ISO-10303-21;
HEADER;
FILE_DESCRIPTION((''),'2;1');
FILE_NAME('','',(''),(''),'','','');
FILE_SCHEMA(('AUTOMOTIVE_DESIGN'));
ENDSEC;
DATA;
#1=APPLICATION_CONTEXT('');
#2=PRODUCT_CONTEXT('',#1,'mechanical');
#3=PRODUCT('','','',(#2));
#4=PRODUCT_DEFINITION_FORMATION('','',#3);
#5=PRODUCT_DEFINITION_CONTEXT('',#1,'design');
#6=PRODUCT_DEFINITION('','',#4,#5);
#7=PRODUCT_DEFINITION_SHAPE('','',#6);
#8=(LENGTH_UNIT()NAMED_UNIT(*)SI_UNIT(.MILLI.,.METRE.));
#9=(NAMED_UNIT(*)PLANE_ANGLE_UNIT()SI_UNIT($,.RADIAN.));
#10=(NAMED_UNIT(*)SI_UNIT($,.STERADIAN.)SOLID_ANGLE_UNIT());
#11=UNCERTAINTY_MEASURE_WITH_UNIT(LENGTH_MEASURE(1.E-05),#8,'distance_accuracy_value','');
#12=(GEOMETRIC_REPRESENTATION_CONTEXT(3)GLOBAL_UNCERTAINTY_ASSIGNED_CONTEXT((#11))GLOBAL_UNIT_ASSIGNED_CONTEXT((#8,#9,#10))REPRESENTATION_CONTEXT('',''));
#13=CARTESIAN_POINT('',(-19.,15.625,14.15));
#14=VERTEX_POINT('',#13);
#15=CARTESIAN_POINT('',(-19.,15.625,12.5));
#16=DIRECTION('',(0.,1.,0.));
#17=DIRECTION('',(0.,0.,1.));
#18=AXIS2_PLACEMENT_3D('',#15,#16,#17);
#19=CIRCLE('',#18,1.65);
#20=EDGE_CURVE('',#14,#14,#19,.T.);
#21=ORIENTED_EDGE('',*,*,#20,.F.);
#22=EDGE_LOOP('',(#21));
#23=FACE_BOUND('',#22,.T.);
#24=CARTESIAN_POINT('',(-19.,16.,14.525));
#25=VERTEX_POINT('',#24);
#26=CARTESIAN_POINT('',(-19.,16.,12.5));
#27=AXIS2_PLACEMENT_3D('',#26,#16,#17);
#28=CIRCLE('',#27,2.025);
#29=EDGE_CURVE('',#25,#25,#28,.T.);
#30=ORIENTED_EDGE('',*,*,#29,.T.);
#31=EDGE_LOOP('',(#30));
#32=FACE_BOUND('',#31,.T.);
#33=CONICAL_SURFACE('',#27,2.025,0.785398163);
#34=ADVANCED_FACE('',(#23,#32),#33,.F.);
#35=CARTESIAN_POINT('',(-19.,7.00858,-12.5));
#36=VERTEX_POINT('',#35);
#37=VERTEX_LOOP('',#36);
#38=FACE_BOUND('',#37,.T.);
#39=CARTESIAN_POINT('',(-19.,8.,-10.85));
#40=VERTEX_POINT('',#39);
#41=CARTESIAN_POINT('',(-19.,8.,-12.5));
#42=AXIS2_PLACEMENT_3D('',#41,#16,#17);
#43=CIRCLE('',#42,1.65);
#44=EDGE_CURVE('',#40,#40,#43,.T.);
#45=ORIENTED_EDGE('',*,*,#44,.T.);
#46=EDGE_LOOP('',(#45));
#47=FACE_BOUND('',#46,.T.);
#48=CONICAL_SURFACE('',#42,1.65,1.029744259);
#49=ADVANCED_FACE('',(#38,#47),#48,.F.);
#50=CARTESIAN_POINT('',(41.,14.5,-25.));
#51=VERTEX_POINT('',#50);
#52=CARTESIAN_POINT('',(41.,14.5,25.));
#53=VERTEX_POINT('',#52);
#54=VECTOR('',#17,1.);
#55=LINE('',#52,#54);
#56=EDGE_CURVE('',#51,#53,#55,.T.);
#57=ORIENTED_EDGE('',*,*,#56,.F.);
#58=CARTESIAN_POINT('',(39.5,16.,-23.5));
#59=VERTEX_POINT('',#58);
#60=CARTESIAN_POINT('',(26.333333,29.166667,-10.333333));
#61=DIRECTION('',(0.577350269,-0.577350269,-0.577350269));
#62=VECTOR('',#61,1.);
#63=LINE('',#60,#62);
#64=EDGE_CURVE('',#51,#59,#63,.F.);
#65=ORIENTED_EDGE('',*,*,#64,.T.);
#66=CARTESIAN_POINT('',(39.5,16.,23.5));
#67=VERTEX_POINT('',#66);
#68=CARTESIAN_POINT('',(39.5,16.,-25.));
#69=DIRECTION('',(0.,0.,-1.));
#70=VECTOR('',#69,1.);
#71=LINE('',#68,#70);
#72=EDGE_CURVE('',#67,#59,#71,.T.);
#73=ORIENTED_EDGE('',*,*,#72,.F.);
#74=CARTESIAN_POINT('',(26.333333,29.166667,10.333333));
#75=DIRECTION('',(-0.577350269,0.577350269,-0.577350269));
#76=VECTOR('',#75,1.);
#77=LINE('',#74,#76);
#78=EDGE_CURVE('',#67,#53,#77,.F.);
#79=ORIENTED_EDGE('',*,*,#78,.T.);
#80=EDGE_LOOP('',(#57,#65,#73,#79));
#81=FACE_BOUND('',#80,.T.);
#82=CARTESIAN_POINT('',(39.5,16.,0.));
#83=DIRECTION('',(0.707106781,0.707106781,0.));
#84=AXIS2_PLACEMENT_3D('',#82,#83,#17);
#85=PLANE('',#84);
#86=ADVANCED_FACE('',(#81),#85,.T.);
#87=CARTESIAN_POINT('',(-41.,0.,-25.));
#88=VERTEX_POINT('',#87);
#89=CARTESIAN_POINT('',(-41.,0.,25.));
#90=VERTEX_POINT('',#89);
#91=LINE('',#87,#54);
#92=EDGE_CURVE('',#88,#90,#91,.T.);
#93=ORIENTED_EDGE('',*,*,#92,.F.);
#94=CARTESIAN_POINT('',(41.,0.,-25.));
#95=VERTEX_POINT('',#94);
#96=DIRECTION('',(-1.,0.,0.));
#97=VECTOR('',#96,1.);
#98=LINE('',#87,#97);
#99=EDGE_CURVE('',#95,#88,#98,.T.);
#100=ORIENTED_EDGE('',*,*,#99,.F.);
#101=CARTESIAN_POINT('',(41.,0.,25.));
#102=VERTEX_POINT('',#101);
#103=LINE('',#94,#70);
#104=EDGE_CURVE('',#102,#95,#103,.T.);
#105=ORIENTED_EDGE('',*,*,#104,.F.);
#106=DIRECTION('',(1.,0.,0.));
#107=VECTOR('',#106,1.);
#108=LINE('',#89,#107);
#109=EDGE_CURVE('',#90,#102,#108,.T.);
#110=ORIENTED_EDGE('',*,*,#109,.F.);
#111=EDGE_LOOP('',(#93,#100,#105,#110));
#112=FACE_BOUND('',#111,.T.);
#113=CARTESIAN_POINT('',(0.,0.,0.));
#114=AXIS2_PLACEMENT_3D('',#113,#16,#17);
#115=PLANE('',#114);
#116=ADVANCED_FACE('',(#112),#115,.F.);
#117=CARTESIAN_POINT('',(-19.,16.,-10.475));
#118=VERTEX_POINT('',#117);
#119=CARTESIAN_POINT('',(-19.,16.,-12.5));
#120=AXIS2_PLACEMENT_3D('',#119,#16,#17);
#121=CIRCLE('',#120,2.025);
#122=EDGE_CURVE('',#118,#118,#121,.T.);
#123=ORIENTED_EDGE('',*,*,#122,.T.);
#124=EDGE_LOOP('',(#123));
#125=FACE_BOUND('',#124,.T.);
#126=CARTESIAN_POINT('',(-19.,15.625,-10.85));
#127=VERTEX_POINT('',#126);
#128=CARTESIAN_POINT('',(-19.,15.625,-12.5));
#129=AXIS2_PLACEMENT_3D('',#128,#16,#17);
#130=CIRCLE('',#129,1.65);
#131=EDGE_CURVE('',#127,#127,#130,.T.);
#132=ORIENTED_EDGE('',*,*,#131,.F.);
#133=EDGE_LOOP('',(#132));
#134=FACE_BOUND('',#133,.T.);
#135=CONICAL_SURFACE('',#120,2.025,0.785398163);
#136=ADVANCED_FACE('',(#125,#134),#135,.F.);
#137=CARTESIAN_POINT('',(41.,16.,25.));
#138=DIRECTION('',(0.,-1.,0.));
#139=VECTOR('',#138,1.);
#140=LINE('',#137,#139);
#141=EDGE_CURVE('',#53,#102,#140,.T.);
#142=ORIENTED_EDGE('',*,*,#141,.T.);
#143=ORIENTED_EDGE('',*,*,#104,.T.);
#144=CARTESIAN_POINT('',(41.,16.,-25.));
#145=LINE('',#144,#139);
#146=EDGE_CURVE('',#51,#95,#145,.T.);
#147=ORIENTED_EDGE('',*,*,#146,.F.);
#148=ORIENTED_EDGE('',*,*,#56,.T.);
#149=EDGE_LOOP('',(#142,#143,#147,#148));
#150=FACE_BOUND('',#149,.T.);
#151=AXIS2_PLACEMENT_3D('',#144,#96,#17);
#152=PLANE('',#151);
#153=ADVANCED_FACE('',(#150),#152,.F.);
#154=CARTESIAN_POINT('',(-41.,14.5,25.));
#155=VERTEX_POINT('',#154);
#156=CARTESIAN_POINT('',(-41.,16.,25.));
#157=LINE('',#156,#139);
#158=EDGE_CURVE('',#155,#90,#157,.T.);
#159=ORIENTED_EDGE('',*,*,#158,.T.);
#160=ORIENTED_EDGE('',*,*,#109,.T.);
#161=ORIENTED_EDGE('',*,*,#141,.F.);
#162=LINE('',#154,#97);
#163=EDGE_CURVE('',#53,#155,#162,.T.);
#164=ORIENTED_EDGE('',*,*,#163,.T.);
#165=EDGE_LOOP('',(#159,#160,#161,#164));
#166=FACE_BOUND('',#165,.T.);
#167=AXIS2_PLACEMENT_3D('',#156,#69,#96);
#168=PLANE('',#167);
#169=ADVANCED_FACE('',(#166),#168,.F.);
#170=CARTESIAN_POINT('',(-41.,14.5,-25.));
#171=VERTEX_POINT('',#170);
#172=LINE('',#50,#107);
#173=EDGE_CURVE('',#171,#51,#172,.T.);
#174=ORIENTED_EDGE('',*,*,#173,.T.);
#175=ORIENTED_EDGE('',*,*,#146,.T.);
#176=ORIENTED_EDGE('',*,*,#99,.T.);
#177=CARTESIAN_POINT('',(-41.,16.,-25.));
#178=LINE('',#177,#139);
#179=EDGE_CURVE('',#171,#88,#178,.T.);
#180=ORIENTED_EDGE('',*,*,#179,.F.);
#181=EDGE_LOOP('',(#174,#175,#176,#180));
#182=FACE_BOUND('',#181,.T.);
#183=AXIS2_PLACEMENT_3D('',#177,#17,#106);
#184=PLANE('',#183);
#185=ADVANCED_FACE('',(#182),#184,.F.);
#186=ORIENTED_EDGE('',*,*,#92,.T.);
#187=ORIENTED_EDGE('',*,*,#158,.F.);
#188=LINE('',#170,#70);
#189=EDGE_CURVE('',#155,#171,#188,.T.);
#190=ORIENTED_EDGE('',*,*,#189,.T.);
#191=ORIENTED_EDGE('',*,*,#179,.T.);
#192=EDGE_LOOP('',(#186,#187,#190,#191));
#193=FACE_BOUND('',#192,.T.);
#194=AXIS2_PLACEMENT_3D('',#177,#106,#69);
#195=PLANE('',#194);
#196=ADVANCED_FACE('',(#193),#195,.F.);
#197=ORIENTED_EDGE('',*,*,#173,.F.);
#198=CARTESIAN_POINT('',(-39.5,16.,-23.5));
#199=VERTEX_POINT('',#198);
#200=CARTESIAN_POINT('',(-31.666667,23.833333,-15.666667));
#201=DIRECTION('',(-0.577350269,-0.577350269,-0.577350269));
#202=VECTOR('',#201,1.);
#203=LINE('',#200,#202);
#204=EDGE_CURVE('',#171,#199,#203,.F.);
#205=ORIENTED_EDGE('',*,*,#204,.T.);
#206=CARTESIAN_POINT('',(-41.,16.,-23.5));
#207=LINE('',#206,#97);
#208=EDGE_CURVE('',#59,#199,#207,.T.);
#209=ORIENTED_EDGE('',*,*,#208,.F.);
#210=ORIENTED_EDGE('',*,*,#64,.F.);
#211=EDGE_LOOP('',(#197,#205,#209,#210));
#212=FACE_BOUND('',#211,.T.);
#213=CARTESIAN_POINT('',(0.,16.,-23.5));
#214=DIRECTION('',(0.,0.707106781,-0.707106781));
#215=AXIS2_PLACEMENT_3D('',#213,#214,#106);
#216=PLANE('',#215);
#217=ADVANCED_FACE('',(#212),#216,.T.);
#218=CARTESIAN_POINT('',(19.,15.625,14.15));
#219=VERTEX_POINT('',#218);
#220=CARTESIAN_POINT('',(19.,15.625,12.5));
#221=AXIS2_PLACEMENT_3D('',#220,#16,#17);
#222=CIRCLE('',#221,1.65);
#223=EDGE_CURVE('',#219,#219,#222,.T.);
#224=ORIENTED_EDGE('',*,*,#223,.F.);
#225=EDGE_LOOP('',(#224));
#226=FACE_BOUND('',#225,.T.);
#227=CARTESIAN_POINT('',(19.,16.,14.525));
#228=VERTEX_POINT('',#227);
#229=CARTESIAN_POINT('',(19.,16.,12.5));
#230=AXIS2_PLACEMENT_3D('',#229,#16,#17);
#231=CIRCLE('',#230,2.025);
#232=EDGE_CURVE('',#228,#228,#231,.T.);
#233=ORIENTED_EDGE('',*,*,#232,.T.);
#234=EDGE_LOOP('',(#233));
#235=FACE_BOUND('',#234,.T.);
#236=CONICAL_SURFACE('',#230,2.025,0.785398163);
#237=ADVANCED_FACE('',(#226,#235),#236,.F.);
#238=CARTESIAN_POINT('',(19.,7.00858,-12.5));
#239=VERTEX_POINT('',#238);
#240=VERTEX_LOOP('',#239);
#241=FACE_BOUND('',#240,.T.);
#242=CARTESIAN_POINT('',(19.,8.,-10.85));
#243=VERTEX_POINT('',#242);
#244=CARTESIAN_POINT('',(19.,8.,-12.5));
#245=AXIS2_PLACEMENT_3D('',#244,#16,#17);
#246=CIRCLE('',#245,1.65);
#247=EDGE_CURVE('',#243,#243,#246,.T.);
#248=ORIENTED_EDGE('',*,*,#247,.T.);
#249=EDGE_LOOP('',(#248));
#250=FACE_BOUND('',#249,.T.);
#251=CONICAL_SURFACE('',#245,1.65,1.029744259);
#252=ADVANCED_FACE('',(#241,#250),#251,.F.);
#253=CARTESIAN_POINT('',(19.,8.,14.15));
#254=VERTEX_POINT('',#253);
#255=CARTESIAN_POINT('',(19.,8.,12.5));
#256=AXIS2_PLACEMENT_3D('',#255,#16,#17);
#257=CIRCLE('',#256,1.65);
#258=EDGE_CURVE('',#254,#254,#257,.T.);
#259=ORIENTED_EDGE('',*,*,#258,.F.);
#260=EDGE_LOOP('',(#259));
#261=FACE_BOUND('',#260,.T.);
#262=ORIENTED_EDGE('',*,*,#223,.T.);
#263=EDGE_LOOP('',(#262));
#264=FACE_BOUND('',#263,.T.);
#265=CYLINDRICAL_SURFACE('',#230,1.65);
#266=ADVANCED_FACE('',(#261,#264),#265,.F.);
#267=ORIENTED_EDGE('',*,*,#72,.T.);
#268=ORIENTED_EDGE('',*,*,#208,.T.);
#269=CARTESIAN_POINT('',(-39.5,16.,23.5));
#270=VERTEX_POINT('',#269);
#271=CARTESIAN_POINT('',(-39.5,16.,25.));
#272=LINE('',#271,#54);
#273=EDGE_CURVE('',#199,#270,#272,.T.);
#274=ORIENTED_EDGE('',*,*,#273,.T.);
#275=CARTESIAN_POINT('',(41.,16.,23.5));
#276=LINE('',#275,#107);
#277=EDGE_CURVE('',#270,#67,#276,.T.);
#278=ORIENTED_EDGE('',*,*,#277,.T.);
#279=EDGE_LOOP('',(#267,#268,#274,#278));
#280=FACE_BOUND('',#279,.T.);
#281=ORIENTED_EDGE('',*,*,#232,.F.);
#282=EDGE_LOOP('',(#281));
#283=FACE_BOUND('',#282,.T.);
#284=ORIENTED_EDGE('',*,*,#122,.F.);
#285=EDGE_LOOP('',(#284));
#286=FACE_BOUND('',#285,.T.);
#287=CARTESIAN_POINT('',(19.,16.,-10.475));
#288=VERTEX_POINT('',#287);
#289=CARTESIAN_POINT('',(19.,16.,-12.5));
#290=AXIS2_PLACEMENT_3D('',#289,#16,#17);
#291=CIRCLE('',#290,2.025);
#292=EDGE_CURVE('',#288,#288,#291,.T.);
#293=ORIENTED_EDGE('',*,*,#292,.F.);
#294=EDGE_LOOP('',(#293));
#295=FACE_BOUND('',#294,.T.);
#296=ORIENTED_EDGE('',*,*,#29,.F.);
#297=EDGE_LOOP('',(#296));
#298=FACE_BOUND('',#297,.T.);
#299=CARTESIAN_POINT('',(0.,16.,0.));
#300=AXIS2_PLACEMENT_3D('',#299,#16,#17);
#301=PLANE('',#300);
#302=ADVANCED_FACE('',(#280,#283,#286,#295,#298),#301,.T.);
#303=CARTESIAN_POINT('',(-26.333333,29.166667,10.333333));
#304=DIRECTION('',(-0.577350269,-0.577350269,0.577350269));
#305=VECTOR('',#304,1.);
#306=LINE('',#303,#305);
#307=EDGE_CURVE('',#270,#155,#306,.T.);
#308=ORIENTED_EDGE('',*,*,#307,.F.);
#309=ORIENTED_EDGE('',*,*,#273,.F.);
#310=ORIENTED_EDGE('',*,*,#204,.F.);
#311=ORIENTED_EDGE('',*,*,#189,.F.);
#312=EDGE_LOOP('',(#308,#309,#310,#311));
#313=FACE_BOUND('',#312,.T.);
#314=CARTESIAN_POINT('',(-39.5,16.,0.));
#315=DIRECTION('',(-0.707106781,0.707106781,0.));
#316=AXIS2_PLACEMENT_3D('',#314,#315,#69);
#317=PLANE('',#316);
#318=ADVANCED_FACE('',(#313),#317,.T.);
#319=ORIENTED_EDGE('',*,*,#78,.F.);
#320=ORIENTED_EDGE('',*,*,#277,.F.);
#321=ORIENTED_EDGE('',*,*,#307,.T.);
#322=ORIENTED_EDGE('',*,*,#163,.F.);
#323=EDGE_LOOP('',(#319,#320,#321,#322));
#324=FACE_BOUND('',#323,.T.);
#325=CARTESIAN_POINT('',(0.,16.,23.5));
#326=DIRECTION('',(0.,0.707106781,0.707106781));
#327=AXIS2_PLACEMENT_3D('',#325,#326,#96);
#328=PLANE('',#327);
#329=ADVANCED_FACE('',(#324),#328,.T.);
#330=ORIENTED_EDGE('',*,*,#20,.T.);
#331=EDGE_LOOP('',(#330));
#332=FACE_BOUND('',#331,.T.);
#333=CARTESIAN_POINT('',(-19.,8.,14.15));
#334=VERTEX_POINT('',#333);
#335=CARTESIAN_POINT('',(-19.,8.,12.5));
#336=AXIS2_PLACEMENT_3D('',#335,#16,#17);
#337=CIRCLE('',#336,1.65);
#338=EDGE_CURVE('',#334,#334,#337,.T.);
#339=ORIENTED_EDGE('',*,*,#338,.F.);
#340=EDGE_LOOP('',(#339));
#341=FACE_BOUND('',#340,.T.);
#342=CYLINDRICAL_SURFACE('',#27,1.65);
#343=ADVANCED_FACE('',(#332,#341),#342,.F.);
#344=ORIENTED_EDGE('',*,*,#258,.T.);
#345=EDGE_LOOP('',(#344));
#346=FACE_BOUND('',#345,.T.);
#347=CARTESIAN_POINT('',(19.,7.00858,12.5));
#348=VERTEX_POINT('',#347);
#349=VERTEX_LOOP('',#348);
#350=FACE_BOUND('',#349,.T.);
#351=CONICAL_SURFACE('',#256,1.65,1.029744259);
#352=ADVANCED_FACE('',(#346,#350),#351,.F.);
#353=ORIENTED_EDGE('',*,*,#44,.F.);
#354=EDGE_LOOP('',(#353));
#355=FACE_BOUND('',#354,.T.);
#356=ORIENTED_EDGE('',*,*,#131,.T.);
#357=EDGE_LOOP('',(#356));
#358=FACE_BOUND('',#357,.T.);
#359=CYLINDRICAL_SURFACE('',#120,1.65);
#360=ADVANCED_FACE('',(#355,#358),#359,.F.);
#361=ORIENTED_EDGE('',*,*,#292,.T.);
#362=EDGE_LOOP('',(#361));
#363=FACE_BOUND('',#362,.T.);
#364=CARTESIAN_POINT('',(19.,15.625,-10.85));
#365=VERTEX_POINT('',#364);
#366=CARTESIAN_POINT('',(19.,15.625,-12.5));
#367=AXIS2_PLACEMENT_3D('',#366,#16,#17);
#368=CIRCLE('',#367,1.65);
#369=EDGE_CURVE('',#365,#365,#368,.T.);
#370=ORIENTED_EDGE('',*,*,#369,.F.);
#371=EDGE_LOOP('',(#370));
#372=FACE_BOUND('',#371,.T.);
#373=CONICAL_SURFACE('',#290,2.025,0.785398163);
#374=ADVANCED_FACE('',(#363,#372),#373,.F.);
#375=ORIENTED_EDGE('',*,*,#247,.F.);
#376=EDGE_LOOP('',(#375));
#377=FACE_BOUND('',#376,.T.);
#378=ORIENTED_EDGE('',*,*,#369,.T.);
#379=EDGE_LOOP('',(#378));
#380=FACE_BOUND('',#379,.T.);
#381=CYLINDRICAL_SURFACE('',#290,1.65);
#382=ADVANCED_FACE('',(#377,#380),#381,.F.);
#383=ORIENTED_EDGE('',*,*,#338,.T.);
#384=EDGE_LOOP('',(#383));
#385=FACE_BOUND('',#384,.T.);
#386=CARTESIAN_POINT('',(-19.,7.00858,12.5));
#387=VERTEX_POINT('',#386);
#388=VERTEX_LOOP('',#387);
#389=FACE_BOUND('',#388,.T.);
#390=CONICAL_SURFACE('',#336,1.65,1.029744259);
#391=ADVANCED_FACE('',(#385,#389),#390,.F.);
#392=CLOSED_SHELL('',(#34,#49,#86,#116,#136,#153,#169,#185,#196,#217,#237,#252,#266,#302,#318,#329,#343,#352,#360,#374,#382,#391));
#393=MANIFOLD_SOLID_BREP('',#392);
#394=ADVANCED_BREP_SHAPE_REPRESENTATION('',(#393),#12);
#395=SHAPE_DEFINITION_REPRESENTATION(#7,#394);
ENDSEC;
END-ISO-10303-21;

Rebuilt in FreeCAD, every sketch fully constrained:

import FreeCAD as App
import Part
import Sketcher
from FreeCAD import Vector


def edges_at(feature, points):
    """Names of the edges that pass closest to the given points."""
    edges = feature.Shape.Edges
    near = lambda p: min(range(len(edges)), key=lambda i: edges[i].distToShape(Part.Vertex(*p))[0])
    return sorted({f"Edge{near(p) + 1}" for p in points})

doc = App.newDocument("Part")
body = doc.addObject("PartDesign::Body", "Body")

sketch1 = doc.addObject("Sketcher::SketchObject", "Sketch")
body.addObject(sketch1)
sketch1.AttachmentSupport = (doc.XZ_Plane, [""])
sketch1.MapMode = "FlatFace"
sketch1.addGeometry([
    Part.LineSegment(Vector(-41, -25, 0), Vector(-41, 25, 0)),
    Part.LineSegment(Vector(-41, 25, 0), Vector(41, 25, 0)),
    Part.LineSegment(Vector(41, 25, 0), Vector(41, -25, 0)),
    Part.LineSegment(Vector(41, -25, 0), Vector(-41, -25, 0)),
], False)
sketch1.addConstraint([
    Sketcher.Constraint("Coincident", 0, 2, 1, 1),
    Sketcher.Constraint("Coincident", 1, 2, 2, 1),
    Sketcher.Constraint("Coincident", 2, 2, 3, 1),
    Sketcher.Constraint("Coincident", 3, 2, 0, 1),
    Sketcher.Constraint("Vertical", 0),
    Sketcher.Constraint("Horizontal", 1),
    Sketcher.Constraint("Vertical", 2),
    Sketcher.Constraint("Horizontal", 3),
    Sketcher.Constraint("Symmetric", 0, 2, 2, 2, -1, 1),
    Sketcher.Constraint("DistanceX", 1, 1, 1, 2, 82.0),
    Sketcher.Constraint("DistanceY", 0, 1, 0, 2, 50.0),
])
pad1 = doc.addObject("PartDesign::Pad", "Pad")
body.addObject(pad1)
pad1.Profile = sketch1
pad1.Length = 16
pad1.Reversed = True

sketch2 = doc.addObject("Sketcher::SketchObject", "Sketch001")
body.addObject(sketch2)
sketch2.AttachmentSupport = (doc.XZ_Plane, [""])
sketch2.MapMode = "FlatFace"
sketch2.AttachmentOffset = App.Placement(Vector(0, 0, -16), App.Rotation())
sketch2.addGeometry([
    Part.Circle(Vector(-19, -12.5, 0), Vector(0, 0, 1), 1.65),
    Part.Circle(Vector(-19, 12.5, 0), Vector(0, 0, 1), 1.65),
    Part.Circle(Vector(19, 12.5, 0), Vector(0, 0, 1), 1.65),
    Part.Circle(Vector(19, -12.5, 0), Vector(0, 0, 1), 1.65),
], False)
sketch2.addConstraint([
    Sketcher.Constraint("Equal", 0, 1),
    Sketcher.Constraint("Equal", 1, 2),
    Sketcher.Constraint("Equal", 2, 3),
    Sketcher.Constraint("Symmetric", 0, 3, 2, 3, -1, 1),
    Sketcher.Constraint("Symmetric", 1, 3, 3, 3, -1, 1),
    Sketcher.Constraint("Symmetric", 1, 3, 2, 3, -2),
    Sketcher.Constraint("Diameter", 0, 3.3),
    Sketcher.Constraint("DistanceX", 0, 3, -1, 1, 19.0),
    Sketcher.Constraint("DistanceY", 0, 3, 1, 3, 25.0),
])
doc.recompute()
hole = doc.addObject("PartDesign::Hole", "Hole")
body.addObject(hole)
hole.Profile = sketch2
hole.ThreadType = "None"
hole.Diameter = 3.3
hole.DepthType = "Dimension"
hole.Depth = 8
hole.DrillPoint = "Angled"
hole.DrillPointAngle = 118
hole.HoleCutType = "Countersink"
hole.HoleCutDiameter = 4.05
hole.HoleCutCountersinkAngle = 90
hole.Reversed = True
doc.recompute()

chamfer = doc.addObject("PartDesign::Chamfer", "Chamfer")
body.addObject(chamfer)
chamfer.Base = (hole, edges_at(hole, [
    (-41, 16, 0),
    (0, 16, 25),
    (41, 16, 0),
    (0, 16, -25),
]))
chamfer.Size = 1.5

doc.recompute()
